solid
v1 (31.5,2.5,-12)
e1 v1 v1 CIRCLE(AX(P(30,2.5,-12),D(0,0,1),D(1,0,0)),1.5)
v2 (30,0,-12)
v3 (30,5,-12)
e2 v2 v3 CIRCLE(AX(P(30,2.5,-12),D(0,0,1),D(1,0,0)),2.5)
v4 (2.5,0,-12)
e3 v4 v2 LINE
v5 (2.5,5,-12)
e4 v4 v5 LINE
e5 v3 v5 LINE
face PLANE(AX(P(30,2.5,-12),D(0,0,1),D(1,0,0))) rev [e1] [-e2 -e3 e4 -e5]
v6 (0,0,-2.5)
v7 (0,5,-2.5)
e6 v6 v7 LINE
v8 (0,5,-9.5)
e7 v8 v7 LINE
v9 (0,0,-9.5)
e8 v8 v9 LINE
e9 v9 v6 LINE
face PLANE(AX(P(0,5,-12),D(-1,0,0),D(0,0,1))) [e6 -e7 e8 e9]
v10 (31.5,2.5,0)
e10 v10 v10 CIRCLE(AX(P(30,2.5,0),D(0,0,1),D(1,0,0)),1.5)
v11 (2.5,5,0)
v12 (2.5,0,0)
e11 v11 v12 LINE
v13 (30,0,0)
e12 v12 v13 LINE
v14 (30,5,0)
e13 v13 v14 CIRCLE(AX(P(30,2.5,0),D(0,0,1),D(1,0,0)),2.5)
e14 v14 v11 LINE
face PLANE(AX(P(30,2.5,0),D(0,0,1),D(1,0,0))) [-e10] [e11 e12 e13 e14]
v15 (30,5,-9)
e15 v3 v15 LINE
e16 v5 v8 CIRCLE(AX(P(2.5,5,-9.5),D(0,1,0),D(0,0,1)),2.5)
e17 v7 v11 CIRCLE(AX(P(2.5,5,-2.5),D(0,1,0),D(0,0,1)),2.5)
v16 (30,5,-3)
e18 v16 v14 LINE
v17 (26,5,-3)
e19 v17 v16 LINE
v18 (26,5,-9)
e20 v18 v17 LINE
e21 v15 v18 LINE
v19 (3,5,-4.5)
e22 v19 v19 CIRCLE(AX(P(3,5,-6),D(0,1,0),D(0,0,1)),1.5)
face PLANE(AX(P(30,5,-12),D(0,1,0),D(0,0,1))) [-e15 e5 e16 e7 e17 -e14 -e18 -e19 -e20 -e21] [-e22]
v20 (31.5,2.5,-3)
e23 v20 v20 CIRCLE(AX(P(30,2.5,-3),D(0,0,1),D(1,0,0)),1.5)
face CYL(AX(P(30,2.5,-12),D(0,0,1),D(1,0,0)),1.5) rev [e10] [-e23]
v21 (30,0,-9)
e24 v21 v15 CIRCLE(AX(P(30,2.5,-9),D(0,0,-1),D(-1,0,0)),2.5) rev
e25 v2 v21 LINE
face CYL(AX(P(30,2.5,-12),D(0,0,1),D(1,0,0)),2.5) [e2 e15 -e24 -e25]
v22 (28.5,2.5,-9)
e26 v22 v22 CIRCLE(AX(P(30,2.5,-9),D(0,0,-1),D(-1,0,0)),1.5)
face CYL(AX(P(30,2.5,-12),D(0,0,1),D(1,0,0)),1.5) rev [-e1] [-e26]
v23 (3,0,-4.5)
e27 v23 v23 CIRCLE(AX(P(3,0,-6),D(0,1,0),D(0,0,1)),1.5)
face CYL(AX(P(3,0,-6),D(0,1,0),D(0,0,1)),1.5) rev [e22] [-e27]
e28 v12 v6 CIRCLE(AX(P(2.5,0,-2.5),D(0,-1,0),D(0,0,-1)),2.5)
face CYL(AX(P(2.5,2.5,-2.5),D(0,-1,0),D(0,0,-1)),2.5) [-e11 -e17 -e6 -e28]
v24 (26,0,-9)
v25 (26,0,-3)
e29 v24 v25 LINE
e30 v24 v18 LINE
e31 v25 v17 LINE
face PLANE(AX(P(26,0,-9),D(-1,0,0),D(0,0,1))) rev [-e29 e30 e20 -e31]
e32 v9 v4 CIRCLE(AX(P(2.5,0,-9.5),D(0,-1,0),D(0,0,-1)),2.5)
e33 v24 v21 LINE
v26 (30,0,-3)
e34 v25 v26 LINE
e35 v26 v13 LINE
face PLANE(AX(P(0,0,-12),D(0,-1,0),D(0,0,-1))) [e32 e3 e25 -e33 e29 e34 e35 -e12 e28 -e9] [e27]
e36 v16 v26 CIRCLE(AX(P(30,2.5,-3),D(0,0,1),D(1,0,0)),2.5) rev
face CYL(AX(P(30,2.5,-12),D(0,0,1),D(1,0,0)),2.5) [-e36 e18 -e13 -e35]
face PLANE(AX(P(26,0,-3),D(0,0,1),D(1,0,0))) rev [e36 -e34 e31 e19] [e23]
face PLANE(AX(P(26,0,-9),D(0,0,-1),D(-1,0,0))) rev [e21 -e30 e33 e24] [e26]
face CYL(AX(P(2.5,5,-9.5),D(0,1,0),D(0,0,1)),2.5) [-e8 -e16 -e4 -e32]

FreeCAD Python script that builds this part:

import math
import FreeCAD as App
import Part
import Sketcher


def edges_at(feature, points):
    """Names of the edges that pass closest to the given points."""
    edges = feature.Shape.Edges
    near = lambda p: min(range(len(edges)), key=lambda i: edges[i].distToShape(Part.Vertex(*p))[0])
    return sorted({f"Edge{near(p) + 1}" for p in points})

doc = App.newDocument("Part")
params = doc.addObject("Spreadsheet::Sheet", "Params")
for row, (alias, value) in enumerate([
    ("sketch1_radius", "2.5 mm"),
    ("sketch1_width", "30 mm"),
    ("pad1_length", "12 mm"),
    ("sketch2_height", "6 mm"),
    ("sketch2_width", "6.5 mm"),
    ("sketch3_diameter", "3 mm"),
    ("pocket2_length", "12 mm"),
    ("sketch4_diameter", "3 mm"),
    ("fillet_radius", "2.5 mm"),
], start=1):
    params.set(f"A{row}", alias)
    params.set(f"B{row}", "=" + value)
    params.setAlias(f"B{row}", alias)

body = doc.addObject("PartDesign::Body", "Body")

# Sketch on XY plane
sketch1 = body.newObject("Sketcher::SketchObject", "Sketch")
sketch1.AttachmentSupport = (doc.getObject("XY_Plane"), [""])
sketch1.MapMode = "FlatFace"
sketch1.addGeometry([
    Part.LineSegment(App.Vector(0, 0, 0), App.Vector(30, 0, 0)),
    Part.ArcOfCircle(Part.Circle(App.Vector(30, 2.5, 0), App.Vector(0, 0, 1), 2.5), math.radians(-90), math.radians(90)),
    Part.LineSegment(App.Vector(30, 5, 0), App.Vector(0, 5, 0)),
    Part.LineSegment(App.Vector(0, 5, 0), App.Vector(0, 0, 0)),
], False)
sketch1.addConstraint([
    Sketcher.Constraint("Tangent", 0, 2, 1, 1),
    Sketcher.Constraint("Tangent", 1, 2, 2, 1),
    Sketcher.Constraint("Coincident", 2, 2, 3, 1),
    Sketcher.Constraint("Coincident", 3, 2, 0, 1),
    Sketcher.Constraint("Horizontal", 0),
    Sketcher.Constraint("Horizontal", 2),
    Sketcher.Constraint("Vertical", 3),
    Sketcher.Constraint("Coincident", 3, 2, -1, 1),
    Sketcher.Constraint("Radius", 1, 2.5),
    Sketcher.Constraint("DistanceX", 0, 1, 0, 2, 30.0),
])
sketch1.setExpression("Constraints[8]", "Params.sketch1_radius")
sketch1.setExpression("Constraints[9]", "Params.sketch1_width")
pad1 = body.newObject("PartDesign::Pad", "Pad")
pad1.Profile = sketch1
pad1.setExpression("Length", "Params.pad1_length")
pad1.Reversed = True

# Sketch on XZ plane
sketch2 = body.newObject("Sketcher::SketchObject", "Sketch001")
sketch2.AttachmentSupport = (doc.getObject("XZ_Plane"), [""])
sketch2.MapMode = "FlatFace"
sketch2.AttachmentOffset = App.Placement(App.Vector(0, 0, -5), App.Rotation())
sketch2.addGeometry([
    Part.LineSegment(App.Vector(26, -9, 0), App.Vector(26, -3, 0)),
    Part.LineSegment(App.Vector(26, -3, 0), App.Vector(32.5, -3, 0)),
    Part.LineSegment(App.Vector(32.5, -3, 0), App.Vector(32.5, -9, 0)),
    Part.LineSegment(App.Vector(32.5, -9, 0), App.Vector(26, -9, 0)),
], False)
sketch2.addConstraint([
    Sketcher.Constraint("Coincident", 0, 2, 1, 1),
    Sketcher.Constraint("Coincident", 1, 2, 2, 1),
    Sketcher.Constraint("Coincident", 2, 2, 3, 1),
    Sketcher.Constraint("Coincident", 3, 2, 0, 1),
    Sketcher.Constraint("Vertical", 0),
    Sketcher.Constraint("Horizontal", 1),
    Sketcher.Constraint("Vertical", 2),
    Sketcher.Constraint("Horizontal", 3),
    Sketcher.Constraint("DistanceY", 0, 1, 0, 2, 6.0),
    Sketcher.Constraint("DistanceX", 1, 1, 1, 2, 6.5),
    Sketcher.Constraint("DistanceX", -1, 1, 0, 2, 26.0),
    Sketcher.Constraint("DistanceY", 0, 2, -1, 1, 3.0),
])
sketch2.setExpression("Constraints[8]", "Params.sketch2_height")
sketch2.setExpression("Constraints[9]", "Params.sketch2_width")
pocket1 = body.newObject("PartDesign::Pocket", "Pocket")
pocket1.Profile = sketch2
pocket1.Type = "ThroughAll"
pocket1.Reversed = True

# Sketch on XY plane
sketch3 = body.newObject("Sketcher::SketchObject", "Sketch002")
sketch3.AttachmentSupport = (doc.getObject("XY_Plane"), [""])
sketch3.MapMode = "FlatFace"
sketch3.addGeometry(Part.Circle(App.Vector(30, 2.5, 0), App.Vector(0, 0, 1), 1.5), False)
sketch3.addConstraint([
    Sketcher.Constraint("Diameter", 0, 3.0),
    Sketcher.Constraint("DistanceX", -1, 1, 0, 3, 30.0),
    Sketcher.Constraint("DistanceY", -1, 1, 0, 3, 2.5),
])
sketch3.setExpression("Constraints[0]", "Params.sketch3_diameter")
pocket2 = body.newObject("PartDesign::Pocket", "Pocket001")
pocket2.Profile = sketch3
pocket2.setExpression("Length", "Params.pocket2_length")

# Sketch on XZ plane
sketch4 = body.newObject("Sketcher::SketchObject", "Sketch003")
sketch4.AttachmentSupport = (doc.getObject("XZ_Plane"), [""])
sketch4.MapMode = "FlatFace"
sketch4.AttachmentOffset = App.Placement(App.Vector(0, 0, -5), App.Rotation())
sketch4.addGeometry(Part.Circle(App.Vector(3, -6, 0), App.Vector(0, 0, 1), 1.5), False)
sketch4.addConstraint([
    Sketcher.Constraint("Diameter", 0, 3.0),
    Sketcher.Constraint("DistanceX", -1, 1, 0, 3, 3.0),
    Sketcher.Constraint("DistanceY", 0, 3, -1, 1, 6.0),
])
sketch4.setExpression("Constraints[0]", "Params.sketch4_diameter")
pocket3 = body.newObject("PartDesign::Pocket", "Pocket002")
pocket3.Profile = sketch4
pocket3.Type = "ThroughAll"
pocket3.Reversed = True
doc.recompute()

fillet = body.newObject("PartDesign::Fillet", "Fillet")
fillet.Base = (pocket3, edges_at(pocket3, [(0, 2.5, -12), (0, 2.5, 0)]))
fillet.setExpression("Radius", "Params.fillet_radius")

doc.recompute()
